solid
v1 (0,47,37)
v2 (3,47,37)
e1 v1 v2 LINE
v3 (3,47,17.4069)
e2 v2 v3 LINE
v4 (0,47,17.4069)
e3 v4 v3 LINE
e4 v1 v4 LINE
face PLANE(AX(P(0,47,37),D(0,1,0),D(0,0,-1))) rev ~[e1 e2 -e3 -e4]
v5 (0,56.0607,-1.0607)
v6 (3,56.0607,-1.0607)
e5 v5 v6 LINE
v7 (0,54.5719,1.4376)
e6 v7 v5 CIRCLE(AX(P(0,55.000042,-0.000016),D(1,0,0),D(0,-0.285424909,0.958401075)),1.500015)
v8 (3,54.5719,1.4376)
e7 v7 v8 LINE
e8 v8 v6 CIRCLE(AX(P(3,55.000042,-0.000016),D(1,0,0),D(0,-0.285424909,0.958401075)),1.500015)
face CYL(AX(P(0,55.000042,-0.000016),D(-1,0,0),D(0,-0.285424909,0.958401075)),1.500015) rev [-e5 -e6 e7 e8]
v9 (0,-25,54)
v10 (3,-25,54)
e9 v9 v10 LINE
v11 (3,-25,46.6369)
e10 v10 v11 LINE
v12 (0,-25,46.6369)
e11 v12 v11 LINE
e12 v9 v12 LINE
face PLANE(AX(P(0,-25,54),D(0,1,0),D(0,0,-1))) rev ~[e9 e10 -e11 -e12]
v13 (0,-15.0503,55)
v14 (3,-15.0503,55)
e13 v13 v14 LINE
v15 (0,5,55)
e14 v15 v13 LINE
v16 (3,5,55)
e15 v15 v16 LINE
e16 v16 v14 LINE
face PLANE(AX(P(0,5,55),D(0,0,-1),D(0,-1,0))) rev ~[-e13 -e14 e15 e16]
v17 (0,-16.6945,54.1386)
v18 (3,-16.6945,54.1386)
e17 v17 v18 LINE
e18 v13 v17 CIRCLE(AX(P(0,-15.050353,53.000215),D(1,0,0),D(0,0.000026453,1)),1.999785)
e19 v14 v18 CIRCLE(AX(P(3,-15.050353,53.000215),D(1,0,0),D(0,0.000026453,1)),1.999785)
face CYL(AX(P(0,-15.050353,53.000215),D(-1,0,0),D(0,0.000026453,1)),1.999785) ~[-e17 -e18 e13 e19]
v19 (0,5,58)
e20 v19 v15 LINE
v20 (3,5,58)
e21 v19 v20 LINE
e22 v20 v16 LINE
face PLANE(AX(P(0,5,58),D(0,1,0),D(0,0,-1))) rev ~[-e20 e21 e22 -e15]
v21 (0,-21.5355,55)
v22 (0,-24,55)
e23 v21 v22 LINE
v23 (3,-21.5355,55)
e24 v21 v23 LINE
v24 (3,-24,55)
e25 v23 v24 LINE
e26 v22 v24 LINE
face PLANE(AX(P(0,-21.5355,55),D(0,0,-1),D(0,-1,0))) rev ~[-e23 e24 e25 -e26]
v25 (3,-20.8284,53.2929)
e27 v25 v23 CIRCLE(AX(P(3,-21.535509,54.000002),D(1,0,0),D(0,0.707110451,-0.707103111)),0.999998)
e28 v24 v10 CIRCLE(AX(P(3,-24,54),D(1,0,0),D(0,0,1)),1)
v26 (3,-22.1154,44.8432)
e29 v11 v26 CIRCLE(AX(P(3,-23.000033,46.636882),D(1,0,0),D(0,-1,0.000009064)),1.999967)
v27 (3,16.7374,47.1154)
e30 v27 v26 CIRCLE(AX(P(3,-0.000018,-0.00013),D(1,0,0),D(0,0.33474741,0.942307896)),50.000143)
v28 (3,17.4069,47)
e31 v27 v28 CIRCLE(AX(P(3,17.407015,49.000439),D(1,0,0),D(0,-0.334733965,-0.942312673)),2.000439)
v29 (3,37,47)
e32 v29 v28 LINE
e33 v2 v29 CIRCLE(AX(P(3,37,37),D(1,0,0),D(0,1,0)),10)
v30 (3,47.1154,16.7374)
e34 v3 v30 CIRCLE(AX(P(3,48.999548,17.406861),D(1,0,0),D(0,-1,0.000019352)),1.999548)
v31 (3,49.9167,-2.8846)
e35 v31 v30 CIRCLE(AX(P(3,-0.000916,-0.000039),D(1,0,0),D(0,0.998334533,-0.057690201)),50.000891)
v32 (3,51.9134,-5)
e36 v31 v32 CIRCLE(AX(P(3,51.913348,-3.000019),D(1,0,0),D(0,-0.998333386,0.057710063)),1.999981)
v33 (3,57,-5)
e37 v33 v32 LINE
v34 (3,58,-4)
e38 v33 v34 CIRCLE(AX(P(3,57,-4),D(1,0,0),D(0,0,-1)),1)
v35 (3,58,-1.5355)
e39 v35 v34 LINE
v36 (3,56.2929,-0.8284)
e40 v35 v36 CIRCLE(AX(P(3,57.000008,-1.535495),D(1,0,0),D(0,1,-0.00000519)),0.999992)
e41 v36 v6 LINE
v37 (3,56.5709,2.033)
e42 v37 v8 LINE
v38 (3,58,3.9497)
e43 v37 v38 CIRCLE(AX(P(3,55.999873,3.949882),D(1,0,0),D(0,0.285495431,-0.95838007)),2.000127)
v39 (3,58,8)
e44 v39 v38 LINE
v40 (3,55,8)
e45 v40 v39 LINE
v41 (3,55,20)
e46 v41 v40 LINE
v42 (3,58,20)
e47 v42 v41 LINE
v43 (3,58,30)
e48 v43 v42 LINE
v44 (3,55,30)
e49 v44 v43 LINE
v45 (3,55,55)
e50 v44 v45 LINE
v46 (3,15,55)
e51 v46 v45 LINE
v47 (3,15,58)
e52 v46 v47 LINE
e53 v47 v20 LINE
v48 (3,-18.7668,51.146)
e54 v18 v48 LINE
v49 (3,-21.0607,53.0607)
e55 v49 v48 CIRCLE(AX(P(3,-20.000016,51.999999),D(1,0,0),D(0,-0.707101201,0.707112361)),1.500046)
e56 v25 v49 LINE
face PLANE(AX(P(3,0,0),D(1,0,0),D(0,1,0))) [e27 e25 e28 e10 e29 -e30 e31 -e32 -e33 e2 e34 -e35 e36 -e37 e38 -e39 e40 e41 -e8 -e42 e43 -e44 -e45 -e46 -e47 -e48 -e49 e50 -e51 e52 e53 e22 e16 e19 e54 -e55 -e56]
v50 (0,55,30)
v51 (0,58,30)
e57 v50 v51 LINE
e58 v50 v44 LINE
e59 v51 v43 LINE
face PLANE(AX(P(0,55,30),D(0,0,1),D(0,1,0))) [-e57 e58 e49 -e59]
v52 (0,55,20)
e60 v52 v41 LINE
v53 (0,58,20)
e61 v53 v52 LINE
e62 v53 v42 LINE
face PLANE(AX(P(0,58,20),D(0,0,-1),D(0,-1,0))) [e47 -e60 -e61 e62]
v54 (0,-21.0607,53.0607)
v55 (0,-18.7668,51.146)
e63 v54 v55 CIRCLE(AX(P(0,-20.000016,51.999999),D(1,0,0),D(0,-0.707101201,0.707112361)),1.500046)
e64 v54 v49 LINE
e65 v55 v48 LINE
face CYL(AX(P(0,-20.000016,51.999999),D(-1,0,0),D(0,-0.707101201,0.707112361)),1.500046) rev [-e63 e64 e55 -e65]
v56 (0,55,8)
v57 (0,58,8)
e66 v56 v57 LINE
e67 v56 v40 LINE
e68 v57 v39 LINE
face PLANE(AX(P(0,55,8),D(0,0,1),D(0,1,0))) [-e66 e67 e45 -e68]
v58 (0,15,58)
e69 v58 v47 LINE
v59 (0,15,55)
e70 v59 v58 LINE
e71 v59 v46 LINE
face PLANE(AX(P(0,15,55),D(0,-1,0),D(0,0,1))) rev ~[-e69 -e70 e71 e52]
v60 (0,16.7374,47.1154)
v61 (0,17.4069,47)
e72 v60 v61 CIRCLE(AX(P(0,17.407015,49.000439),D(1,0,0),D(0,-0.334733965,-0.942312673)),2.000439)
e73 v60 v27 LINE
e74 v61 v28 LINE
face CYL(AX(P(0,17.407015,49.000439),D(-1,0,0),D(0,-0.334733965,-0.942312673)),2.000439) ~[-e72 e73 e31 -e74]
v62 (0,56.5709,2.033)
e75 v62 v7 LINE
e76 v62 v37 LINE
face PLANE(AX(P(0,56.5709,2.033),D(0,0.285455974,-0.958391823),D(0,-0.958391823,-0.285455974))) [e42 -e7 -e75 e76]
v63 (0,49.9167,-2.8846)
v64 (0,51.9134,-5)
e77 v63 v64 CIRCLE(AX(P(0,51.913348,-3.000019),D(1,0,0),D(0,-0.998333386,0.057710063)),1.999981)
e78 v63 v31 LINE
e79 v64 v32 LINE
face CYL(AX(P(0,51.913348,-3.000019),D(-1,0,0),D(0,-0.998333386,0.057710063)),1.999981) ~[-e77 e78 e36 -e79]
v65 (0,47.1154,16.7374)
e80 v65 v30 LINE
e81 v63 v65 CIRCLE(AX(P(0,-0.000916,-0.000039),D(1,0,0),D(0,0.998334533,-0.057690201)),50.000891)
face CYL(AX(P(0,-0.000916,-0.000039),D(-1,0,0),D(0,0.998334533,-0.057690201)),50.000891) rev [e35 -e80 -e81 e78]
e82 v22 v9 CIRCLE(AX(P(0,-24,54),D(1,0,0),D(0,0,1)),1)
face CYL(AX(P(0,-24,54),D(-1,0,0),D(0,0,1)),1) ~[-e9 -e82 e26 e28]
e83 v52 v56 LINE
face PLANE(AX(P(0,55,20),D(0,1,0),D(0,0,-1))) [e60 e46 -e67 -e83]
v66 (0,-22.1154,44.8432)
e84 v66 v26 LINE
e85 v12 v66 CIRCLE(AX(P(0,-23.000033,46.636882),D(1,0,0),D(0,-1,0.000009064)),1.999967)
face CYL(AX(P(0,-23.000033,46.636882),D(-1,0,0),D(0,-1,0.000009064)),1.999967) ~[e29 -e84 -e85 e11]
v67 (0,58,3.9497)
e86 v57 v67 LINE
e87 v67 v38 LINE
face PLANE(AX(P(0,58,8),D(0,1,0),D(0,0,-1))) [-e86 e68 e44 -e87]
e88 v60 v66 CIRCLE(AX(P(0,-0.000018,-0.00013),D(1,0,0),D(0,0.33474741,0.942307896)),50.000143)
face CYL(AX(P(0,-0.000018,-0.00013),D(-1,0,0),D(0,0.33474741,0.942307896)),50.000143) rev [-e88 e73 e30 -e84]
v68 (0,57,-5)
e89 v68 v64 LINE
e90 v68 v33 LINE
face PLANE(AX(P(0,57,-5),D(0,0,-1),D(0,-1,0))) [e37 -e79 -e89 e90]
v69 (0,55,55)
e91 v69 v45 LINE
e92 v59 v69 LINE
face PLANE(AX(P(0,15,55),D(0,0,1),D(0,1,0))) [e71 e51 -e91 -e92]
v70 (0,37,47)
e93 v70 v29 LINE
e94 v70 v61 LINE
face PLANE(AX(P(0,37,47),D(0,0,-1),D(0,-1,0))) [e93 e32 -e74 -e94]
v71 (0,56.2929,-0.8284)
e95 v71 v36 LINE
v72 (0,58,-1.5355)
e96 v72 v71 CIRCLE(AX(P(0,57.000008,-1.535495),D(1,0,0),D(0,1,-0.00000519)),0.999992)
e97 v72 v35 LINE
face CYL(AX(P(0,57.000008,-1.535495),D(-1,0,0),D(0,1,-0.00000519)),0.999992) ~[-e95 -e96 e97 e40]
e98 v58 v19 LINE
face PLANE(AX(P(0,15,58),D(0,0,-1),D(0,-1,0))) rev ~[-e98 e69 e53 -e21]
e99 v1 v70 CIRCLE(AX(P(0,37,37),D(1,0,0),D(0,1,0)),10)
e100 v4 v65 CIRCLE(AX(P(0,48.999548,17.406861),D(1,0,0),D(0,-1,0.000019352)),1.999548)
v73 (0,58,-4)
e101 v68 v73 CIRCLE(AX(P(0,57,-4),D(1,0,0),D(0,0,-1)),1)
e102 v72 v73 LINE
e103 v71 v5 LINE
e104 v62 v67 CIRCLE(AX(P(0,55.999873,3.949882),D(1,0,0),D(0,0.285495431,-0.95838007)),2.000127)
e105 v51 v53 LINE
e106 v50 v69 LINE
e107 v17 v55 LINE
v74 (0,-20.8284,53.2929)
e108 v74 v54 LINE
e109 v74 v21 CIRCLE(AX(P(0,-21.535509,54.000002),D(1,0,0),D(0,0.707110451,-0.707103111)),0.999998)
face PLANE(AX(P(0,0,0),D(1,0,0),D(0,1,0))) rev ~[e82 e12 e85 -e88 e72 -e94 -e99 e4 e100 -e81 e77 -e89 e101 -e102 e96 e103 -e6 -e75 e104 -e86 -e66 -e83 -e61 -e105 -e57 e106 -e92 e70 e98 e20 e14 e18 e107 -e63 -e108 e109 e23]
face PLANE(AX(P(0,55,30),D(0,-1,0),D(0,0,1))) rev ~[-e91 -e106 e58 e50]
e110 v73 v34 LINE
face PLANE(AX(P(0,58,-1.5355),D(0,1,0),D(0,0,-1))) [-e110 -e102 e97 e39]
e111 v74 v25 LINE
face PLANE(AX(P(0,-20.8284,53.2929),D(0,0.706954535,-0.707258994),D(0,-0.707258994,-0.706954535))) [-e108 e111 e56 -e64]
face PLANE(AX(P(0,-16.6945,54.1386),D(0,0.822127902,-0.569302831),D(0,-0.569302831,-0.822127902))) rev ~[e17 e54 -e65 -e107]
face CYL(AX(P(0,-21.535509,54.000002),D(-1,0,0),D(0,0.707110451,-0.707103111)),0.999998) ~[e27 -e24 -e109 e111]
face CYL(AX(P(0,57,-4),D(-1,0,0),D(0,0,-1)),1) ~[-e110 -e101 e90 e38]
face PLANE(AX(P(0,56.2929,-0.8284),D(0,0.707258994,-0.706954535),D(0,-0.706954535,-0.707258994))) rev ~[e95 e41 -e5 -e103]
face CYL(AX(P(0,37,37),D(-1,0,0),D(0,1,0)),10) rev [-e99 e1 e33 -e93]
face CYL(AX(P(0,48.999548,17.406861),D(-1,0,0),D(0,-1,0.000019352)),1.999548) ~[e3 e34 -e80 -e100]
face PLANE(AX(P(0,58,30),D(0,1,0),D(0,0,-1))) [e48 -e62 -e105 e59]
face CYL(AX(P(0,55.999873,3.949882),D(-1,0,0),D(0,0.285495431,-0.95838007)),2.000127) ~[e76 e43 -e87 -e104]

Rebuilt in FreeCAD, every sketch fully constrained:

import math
import FreeCAD as App
import Part
import Sketcher

doc = App.newDocument("Part")
body = doc.addObject("PartDesign::Body", "Body")

# Sketch on YZ plane
sketch1 = body.newObject("Sketcher::SketchObject", "Sketch")
sketch1.AttachmentSupport = (doc.getObject("YZ_Plane"), [""])
sketch1.MapMode = "FlatFace"
sketch1.addGeometry(Part.LineSegment(App.Vector(58, 30, 0), App.Vector(55, 30, 0)), False)
sketch1.addGeometry(Part.LineSegment(App.Vector(55, 30, 0), App.Vector(55, 55, 0)), False)
sketch1.addGeometry(Part.LineSegment(App.Vector(55, 55, 0), App.Vector(15, 55, 0)), False)
sketch1.addGeometry(Part.LineSegment(App.Vector(15, 55, 0), App.Vector(15, 58, 0)), False)
sketch1.addGeometry(Part.LineSegment(App.Vector(15, 58, 0), App.Vector(5, 58, 0)), False)
sketch1.addGeometry(Part.LineSegment(App.Vector(5, 58, 0), App.Vector(5, 55, 0)), False)
sketch1.addGeometry(Part.LineSegment(App.Vector(5, 55, 0), App.Vector(-15.05, 55, 0)), False)
sketch1.addGeometry(Part.ArcOfCircle(Part.Circle(App.Vector(-15.05, 53, 0), App.Vector(0, 0, 1), 2), math.radians(90), math.radians(145)), False)
sketch1.addGeometry(Part.LineSegment(App.Vector(-16.69, 54.14, 0), App.Vector(-18.77, 51.15, 0)), False)
sketch1.addGeometry(Part.ArcOfCircle(Part.Circle(App.Vector(-20, 52, 0), App.Vector(0, 0, 1), 1.5), math.radians(135), math.radians(325)), False)
sketch1.addGeometry(Part.LineSegment(App.Vector(-21.06, 53.06, 0), App.Vector(-20.83, 53.29, 0)), False)
sketch1.addGeometry(Part.ArcOfCircle(Part.Circle(App.Vector(-21.54, 54, 0), App.Vector(0, 0, 1), 1), math.radians(-45), math.radians(90)), False)
sketch1.addGeometry(Part.LineSegment(App.Vector(-21.54, 55, 0), App.Vector(-24, 55, 0)), False)
sketch1.addGeometry(Part.ArcOfCircle(Part.Circle(App.Vector(-24, 54, 0), App.Vector(0, 0, 1), 1), math.radians(90), math.radians(180)), False)
sketch1.addGeometry(Part.LineSegment(App.Vector(-25, 54, 0), App.Vector(-25, 46.64, 0)), False)
sketch1.addGeometry(Part.ArcOfCircle(Part.Circle(App.Vector(-23, 46.64, 0), App.Vector(0, 0, 1), 2), math.radians(180), math.radians(296)), False)
sketch1.addGeometry(Part.ArcOfCircle(Part.Circle(App.Vector(0, 0, 0), App.Vector(0, 0, 1), 50), math.radians(70), math.radians(116)), False)
sketch1.addGeometry(Part.ArcOfCircle(Part.Circle(App.Vector(17.41, 49, 0), App.Vector(0, 0, 1), 2), math.radians(-109.56), math.radians(-90)), False)
sketch1.addGeometry(Part.LineSegment(App.Vector(17.41, 47, 0), App.Vector(37, 47, 0)), False)
sketch1.addGeometry(Part.ArcOfCircle(Part.Circle(App.Vector(37, 37, 0), App.Vector(0, 0, 1), 10), math.radians(0), math.radians(90)), False)
sketch1.addGeometry(Part.LineSegment(App.Vector(47, 37, 0), App.Vector(47, 17.41, 0)), False)
sketch1.addGeometry(Part.ArcOfCircle(Part.Circle(App.Vector(49, 17.41, 0), App.Vector(0, 0, 1), 2), math.radians(180), math.radians(199.56)), False)
sketch1.addGeometry(Part.ArcOfCircle(Part.Circle(App.Vector(0, 0, 0), App.Vector(0, 0, 1), 50), math.radians(-3), math.radians(20)), False)
sketch1.addGeometry(Part.ArcOfCircle(Part.Circle(App.Vector(51.91, -3, 0), App.Vector(0, 0, 1), 2), math.radians(177), math.radians(270)), False)
sketch1.addGeometry(Part.LineSegment(App.Vector(51.91, -5, 0), App.Vector(57, -5, 0)), False)
sketch1.addGeometry(Part.ArcOfCircle(Part.Circle(App.Vector(57, -4, 0), App.Vector(0, 0, 1), 1), math.radians(-90), math.radians(0)), False)
sketch1.addGeometry(Part.LineSegment(App.Vector(58, -4, 0), App.Vector(58, -1.54, 0)), False)
sketch1.addGeometry(Part.ArcOfCircle(Part.Circle(App.Vector(57, -1.54, 0), App.Vector(0, 0, 1), 1), math.radians(0), math.radians(135)), False)
sketch1.addGeometry(Part.LineSegment(App.Vector(56.29, -0.83, 0), App.Vector(56.06, -1.06, 0)), False)
sketch1.addGeometry(Part.ArcOfCircle(Part.Circle(App.Vector(55, 0, 0), App.Vector(0, 0, 1), 1.5), math.radians(107), math.radians(315)), False)
sketch1.addGeometry(Part.LineSegment(App.Vector(54.57, 1.44, 0), App.Vector(56.57, 2.03, 0)), False)
sketch1.addGeometry(Part.ArcOfCircle(Part.Circle(App.Vector(56, 3.95, 0), App.Vector(0, 0, 1), 2), math.radians(-73), math.radians(0)), False)
sketch1.addGeometry(Part.LineSegment(App.Vector(58, 3.95, 0), App.Vector(58, 8, 0)), False)
sketch1.addGeometry(Part.LineSegment(App.Vector(58, 8, 0), App.Vector(55, 8, 0)), False)
sketch1.addGeometry(Part.LineSegment(App.Vector(55, 8, 0), App.Vector(55, 20, 0)), False)
sketch1.addGeometry(Part.LineSegment(App.Vector(55, 20, 0), App.Vector(58, 20, 0)), False)
sketch1.addGeometry(Part.LineSegment(App.Vector(58, 20, 0), App.Vector(58, 30, 0)), False)
sketch1.addConstraint(Sketcher.Constraint("Coincident", 0, 2, 1, 1))
sketch1.addConstraint(Sketcher.Constraint("Coincident", 1, 2, 2, 1))
sketch1.addConstraint(Sketcher.Constraint("Coincident", 2, 2, 3, 1))
sketch1.addConstraint(Sketcher.Constraint("Coincident", 3, 2, 4, 1))
sketch1.addConstraint(Sketcher.Constraint("Coincident", 4, 2, 5, 1))
sketch1.addConstraint(Sketcher.Constraint("Coincident", 5, 2, 6, 1))
sketch1.addConstraint(Sketcher.Constraint("Tangent", 6, 2, 7, 1))
sketch1.addConstraint(Sketcher.Constraint("Tangent", 7, 2, 8, 1))
sketch1.addConstraint(Sketcher.Constraint("Tangent", 8, 2, 9, 2))
sketch1.addConstraint(Sketcher.Constraint("Tangent", 9, 1, 10, 1))
sketch1.addConstraint(Sketcher.Constraint("Tangent", 10, 2, 11, 1))
sketch1.addConstraint(Sketcher.Constraint("Tangent", 11, 2, 12, 1))
sketch1.addConstraint(Sketcher.Constraint("Tangent", 12, 2, 13, 1))
sketch1.addConstraint(Sketcher.Constraint("Tangent", 13, 2, 14, 1))
sketch1.addConstraint(Sketcher.Constraint("Tangent", 14, 2, 15, 1))
sketch1.addConstraint(Sketcher.Constraint("Tangent", 15, 2, 16, 2))
sketch1.addConstraint(Sketcher.Constraint("Tangent", 16, 1, 17, 1))
sketch1.addConstraint(Sketcher.Constraint("Tangent", 17, 2, 18, 1))
sketch1.addConstraint(Sketcher.Constraint("Tangent", 18, 2, 19, 2))
sketch1.addConstraint(Sketcher.Constraint("Tangent", 19, 1, 20, 1))
sketch1.addConstraint(Sketcher.Constraint("Tangent", 20, 2, 21, 1))
sketch1.addConstraint(Sketcher.Constraint("Tangent", 21, 2, 22, 2))
sketch1.addConstraint(Sketcher.Constraint("Tangent", 22, 1, 23, 1))
sketch1.addConstraint(Sketcher.Constraint("Tangent", 23, 2, 24, 1))
sketch1.addConstraint(Sketcher.Constraint("Tangent", 24, 2, 25, 1))
sketch1.addConstraint(Sketcher.Constraint("Tangent", 25, 2, 26, 1))
sketch1.addConstraint(Sketcher.Constraint("Tangent", 26, 2, 27, 1))
sketch1.addConstraint(Sketcher.Constraint("Tangent", 27, 2, 28, 1))
sketch1.addConstraint(Sketcher.Constraint("Tangent", 28, 2, 29, 2))
sketch1.addConstraint(Sketcher.Constraint("Tangent", 29, 1, 30, 1))
sketch1.addConstraint(Sketcher.Constraint("Tangent", 30, 2, 31, 1))
sketch1.addConstraint(Sketcher.Constraint("Tangent", 31, 2, 32, 1))
sketch1.addConstraint(Sketcher.Constraint("Coincident", 32, 2, 33, 1))
sketch1.addConstraint(Sketcher.Constraint("Coincident", 33, 2, 34, 1))
sketch1.addConstraint(Sketcher.Constraint("Coincident", 34, 2, 35, 1))
sketch1.addConstraint(Sketcher.Constraint("Coincident", 35, 2, 36, 1))
sketch1.addConstraint(Sketcher.Constraint("Coincident", 36, 2, 0, 1))
sketch1.addConstraint(Sketcher.Constraint("Horizontal", 0))
sketch1.addConstraint(Sketcher.Constraint("Vertical", 1))
sketch1.addConstraint(Sketcher.Constraint("Horizontal", 2))
sketch1.addConstraint(Sketcher.Constraint("Vertical", 3))
sketch1.addConstraint(Sketcher.Constraint("Horizontal", 4))
sketch1.addConstraint(Sketcher.Constraint("Vertical", 5))
sketch1.addConstraint(Sketcher.Constraint("Horizontal", 6))
sketch1.addConstraint(Sketcher.Constraint("Horizontal", 12))
sketch1.addConstraint(Sketcher.Constraint("Vertical", 14))
sketch1.addConstraint(Sketcher.Constraint("Horizontal", 18))
sketch1.addConstraint(Sketcher.Constraint("Vertical", 20))
sketch1.addConstraint(Sketcher.Constraint("Horizontal", 24))
sketch1.addConstraint(Sketcher.Constraint("Vertical", 26))
sketch1.addConstraint(Sketcher.Constraint("Vertical", 32))
sketch1.addConstraint(Sketcher.Constraint("Horizontal", 33))
sketch1.addConstraint(Sketcher.Constraint("Vertical", 34))
sketch1.addConstraint(Sketcher.Constraint("Horizontal", 35))
sketch1.addConstraint(Sketcher.Constraint("Vertical", 36))
sketch1.addConstraint(Sketcher.Constraint("Coincident", 16, 3, -1, 1))
sketch1.addConstraint(Sketcher.Constraint("Coincident", 22, 3, -1, 1))
sketch1.addConstraint(Sketcher.Constraint("Equal", 11, 13))
sketch1.addConstraint(Sketcher.Constraint("Equal", 7, 15))
sketch1.addConstraint(Sketcher.Constraint("Equal", 15, 17))
sketch1.addConstraint(Sketcher.Constraint("Equal", 17, 21))
sketch1.addConstraint(Sketcher.Constraint("Equal", 16, 22))
sketch1.addConstraint(Sketcher.Constraint("Equal", 21, 23))
sketch1.addConstraint(Sketcher.Constraint("Equal", 13, 25))
sketch1.addConstraint(Sketcher.Constraint("Equal", 25, 27))
sketch1.addConstraint(Sketcher.Constraint("Equal", 9, 29))
sketch1.addConstraint(Sketcher.Constraint("Equal", 23, 31))
sketch1.addConstraint(Sketcher.Constraint("PointOnObject", 29, 3, -1))
sketch1.addConstraint(Sketcher.Constraint("Parallel", 10, 28))
sketch1.addConstraint(Sketcher.Constraint("Horizontal", 2, 2, 5, 2))
sketch1.addConstraint(Sketcher.Constraint("Horizontal", 6, 2, 11, 2))
sketch1.addConstraint(Sketcher.Constraint("Vertical", 29, 3, 0, 2))
sketch1.addConstraint(Sketcher.Constraint("Vertical", 26, 2, 31, 2))
sketch1.addConstraint(Sketcher.Constraint("Vertical", 1, 2, 33, 2))
sketch1.addConstraint(Sketcher.Constraint("Vertical", 32, 2, 35, 2))
sketch1.addConstraint(Sketcher.Constraint("Equal", 35, 3))
sketch1.addConstraint(Sketcher.Constraint("Equal", 18, 20))
sketch1.addConstraint(Sketcher.Constraint("Equal", 12, 26))
sketch1.addConstraint(Sketcher.Constraint("Equal", 4, 36))
sketch1.addConstraint(Sketcher.Constraint("Equal", 10, 28))
sketch1.addConstraint(Sketcher.Constraint("Radius", 7, 2.0))
sketch1.addConstraint(Sketcher.Constraint("Radius", 11, 1.0))
sketch1.addConstraint(Sketcher.Constraint("Radius", 19, 10.0))
sketch1.addConstraint(Sketcher.Constraint("Radius", 9, 1.5))
sketch1.addConstraint(Sketcher.Constraint("DistanceX", 0, 2, 0, 1, 3.0))
sketch1.addConstraint(Sketcher.Constraint("DistanceX", 2, 2, 2, 1, 40.0))
sketch1.addConstraint(Sketcher.Constraint("DistanceX", 4, 2, 4, 1, 10.0))
sketch1.addConstraint(Sketcher.Constraint("DistanceY", 1, 1, 1, 2, 25.0))
sketch1.addConstraint(Sketcher.Constraint("DistanceY", 34, 1, 34, 2, 12.0))
sketch1.addConstraint(Sketcher.Constraint("DistanceY", 23, 3, -1, 1, 3.0))
sketch1.addConstraint(Sketcher.Constraint("DistanceX", -1, 1, 29, 3, 55.0))
sketch1.addConstraint(Sketcher.Constraint("DistanceY", -1, 1, 1, 2, 55.0))
sketch1.addConstraint(Sketcher.Constraint("DistanceX", 13, 2, -1, 1, 25.0))
sketch1.addConstraint(Sketcher.Constraint("Radius", 16, 50.0))
sketch1.addConstraint(Sketcher.Constraint("DistanceY", 9, 3, 7, 3, 1.0))
sketch1.addConstraint(Sketcher.Constraint("DistanceY", 17, 3, 9, 3, 3.0))
sketch1.addConstraint(Sketcher.Constraint("DistanceY", 32, 1, 32, 2, 4.0503))
sketch1.addConstraint(Sketcher.Constraint("Distance", 8, 3.64))
pad1 = body.newObject("PartDesign::Pad", "Pad")
pad1.Profile = sketch1
pad1.Length = 3

doc.recompute()
